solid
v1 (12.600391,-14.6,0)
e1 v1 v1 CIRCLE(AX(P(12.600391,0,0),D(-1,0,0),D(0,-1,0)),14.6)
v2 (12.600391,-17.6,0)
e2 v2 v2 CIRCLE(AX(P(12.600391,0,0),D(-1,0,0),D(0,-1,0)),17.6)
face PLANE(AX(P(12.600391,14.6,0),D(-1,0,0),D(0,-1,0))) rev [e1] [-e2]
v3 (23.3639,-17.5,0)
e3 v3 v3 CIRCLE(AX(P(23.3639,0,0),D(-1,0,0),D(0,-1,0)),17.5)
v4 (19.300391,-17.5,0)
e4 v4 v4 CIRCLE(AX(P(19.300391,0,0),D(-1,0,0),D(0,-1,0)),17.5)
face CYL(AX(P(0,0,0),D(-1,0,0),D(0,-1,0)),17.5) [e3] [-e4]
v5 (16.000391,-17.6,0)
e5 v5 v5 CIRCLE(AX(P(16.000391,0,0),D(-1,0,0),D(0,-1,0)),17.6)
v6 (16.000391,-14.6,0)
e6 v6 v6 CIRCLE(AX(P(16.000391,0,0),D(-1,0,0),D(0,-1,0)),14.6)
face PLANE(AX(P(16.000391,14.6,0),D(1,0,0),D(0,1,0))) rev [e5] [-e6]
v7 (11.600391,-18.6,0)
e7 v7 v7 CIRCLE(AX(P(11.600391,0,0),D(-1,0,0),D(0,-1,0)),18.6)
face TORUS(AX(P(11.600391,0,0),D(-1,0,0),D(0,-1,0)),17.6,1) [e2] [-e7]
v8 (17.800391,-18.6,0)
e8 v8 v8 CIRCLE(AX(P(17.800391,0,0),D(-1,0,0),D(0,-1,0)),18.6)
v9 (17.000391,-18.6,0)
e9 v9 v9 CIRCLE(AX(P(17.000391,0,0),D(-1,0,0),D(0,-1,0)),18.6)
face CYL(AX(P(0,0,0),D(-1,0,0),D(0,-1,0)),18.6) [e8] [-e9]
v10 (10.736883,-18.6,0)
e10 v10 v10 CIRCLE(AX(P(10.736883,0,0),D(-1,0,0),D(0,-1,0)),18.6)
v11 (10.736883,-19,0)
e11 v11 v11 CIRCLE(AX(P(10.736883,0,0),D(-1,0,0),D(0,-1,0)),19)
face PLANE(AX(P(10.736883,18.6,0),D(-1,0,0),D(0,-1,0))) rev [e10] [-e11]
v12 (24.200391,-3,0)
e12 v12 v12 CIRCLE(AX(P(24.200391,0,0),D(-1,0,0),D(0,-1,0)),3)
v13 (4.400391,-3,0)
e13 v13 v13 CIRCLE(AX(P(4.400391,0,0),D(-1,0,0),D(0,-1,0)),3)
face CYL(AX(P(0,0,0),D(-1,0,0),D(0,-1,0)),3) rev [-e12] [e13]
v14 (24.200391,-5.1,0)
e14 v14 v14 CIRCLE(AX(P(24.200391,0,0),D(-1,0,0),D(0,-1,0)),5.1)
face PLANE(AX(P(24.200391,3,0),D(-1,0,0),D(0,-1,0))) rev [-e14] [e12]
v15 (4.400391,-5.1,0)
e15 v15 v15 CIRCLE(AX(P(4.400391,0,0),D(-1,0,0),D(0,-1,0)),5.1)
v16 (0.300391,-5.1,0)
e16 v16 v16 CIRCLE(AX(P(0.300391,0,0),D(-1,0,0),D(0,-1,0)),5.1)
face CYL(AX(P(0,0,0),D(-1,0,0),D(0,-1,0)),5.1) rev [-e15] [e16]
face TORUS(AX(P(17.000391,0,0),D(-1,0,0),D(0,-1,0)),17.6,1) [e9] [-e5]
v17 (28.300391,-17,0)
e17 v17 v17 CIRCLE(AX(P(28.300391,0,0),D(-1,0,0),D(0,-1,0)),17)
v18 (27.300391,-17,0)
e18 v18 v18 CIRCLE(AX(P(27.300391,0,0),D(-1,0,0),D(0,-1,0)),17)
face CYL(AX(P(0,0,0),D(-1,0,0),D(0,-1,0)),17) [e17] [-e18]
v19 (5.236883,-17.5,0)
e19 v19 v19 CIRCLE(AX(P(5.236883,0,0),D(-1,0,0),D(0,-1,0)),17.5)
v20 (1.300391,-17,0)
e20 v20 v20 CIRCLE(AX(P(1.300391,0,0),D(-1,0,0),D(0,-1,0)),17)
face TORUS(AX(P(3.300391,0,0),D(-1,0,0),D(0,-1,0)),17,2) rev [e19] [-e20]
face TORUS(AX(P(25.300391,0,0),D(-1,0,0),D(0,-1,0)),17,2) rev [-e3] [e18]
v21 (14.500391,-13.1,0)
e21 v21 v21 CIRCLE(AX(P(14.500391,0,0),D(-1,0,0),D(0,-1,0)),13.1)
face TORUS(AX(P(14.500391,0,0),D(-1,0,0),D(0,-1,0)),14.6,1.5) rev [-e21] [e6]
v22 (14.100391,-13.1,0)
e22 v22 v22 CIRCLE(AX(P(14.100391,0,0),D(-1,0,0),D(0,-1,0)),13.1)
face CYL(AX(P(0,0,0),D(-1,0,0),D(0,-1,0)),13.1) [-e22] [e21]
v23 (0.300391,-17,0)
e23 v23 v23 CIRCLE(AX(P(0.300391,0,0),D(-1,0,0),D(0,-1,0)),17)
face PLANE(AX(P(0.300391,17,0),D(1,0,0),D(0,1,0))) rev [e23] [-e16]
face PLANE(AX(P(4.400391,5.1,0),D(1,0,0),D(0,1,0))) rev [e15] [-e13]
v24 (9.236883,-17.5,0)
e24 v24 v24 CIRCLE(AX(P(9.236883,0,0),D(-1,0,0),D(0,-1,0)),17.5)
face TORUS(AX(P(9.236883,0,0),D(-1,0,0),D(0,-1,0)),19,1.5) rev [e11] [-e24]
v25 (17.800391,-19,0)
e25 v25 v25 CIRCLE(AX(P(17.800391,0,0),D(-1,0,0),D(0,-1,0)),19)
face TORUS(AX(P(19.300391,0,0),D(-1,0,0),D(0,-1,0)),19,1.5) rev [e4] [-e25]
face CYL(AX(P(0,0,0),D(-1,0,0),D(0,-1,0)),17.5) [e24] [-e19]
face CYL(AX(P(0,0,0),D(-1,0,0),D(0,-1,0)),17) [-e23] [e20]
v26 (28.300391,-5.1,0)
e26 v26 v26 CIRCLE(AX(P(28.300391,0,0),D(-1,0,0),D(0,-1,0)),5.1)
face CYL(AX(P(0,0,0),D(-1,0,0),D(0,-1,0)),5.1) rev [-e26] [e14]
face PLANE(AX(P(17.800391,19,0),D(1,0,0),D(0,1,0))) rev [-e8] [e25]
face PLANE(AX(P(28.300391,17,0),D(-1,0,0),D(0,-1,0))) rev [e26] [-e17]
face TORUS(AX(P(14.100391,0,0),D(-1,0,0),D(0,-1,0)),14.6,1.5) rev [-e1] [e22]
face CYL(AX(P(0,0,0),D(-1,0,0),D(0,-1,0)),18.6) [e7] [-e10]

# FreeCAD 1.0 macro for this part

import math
import FreeCAD as App
import Part
import Sketcher
from FreeCAD import Vector
Q = App.Units.Quantity

doc = App.newDocument("Part")
params = doc.addObject("Spreadsheet::Sheet", "Params")
for row, (alias, value) in enumerate([
    ("sketch1_radius", "1 mm"),
    ("sketch1_radius2", "2 mm"),
    ("sketch1_radius3", "1.5 mm"),
    ("sketch1_width", "4 mm"),
    ("sketch1_width2", "1 mm"),
    ("revolution_angle", "360 deg"),
], start=1):
    params.set(f"A{row}", alias)
    params.set(f"B{row}", "=" + value)
    params.setAlias(f"B{row}", alias)

body = doc.addObject("PartDesign::Body", "Body")

# Sketch on XY plane
sketch1 = body.newObject("Sketcher::SketchObject", "Sketch")
sketch1.AttachmentSupport = (doc.getObject("XY_Plane"), [""])
sketch1.MapMode = "FlatFace"
sketch1.addGeometry([
    Part.LineSegment(Vector(17.800391, 19, 0), Vector(17.800391, 18.6, 0)),  # 0
    Part.LineSegment(Vector(17.800391, 18.6, 0), Vector(17.000391, 18.6, 0)),  # 1
    Part.ArcOfCircle(Part.Circle(Vector(17.000391, 17.6, 0), Vector(0, 0, 1), 1), math.radians(90), math.radians(180)),  # 2
    Part.LineSegment(Vector(16.000391, 17.6, 0), Vector(16.000391, 14.6, 0)),  # 3
    Part.ArcOfCircle(Part.Circle(Vector(14.500391, 14.6, 0), Vector(0, 0, 1), 1.5), math.radians(-90), math.radians(0)),  # 4
    Part.LineSegment(Vector(14.500391, 13.1, 0), Vector(14.100391, 13.1, 0)),  # 5
    Part.ArcOfCircle(Part.Circle(Vector(14.100391, 14.6, 0), Vector(0, 0, 1), 1.5), math.radians(180), math.radians(270)),  # 6
    Part.LineSegment(Vector(12.600391, 14.6, 0), Vector(12.600391, 17.6, 0)),  # 7
    Part.ArcOfCircle(Part.Circle(Vector(11.600391, 17.6, 0), Vector(0, 0, 1), 1), math.radians(0), math.radians(90)),  # 8
    Part.LineSegment(Vector(11.600391, 18.6, 0), Vector(10.736883, 18.6, 0)),  # 9
    Part.LineSegment(Vector(10.736883, 18.6, 0), Vector(10.736883, 19, 0)),  # 10
    Part.ArcOfCircle(Part.Circle(Vector(9.236883, 19, 0), Vector(0, 0, 1), 1.5), math.radians(-90), math.radians(0)),  # 11
    Part.LineSegment(Vector(9.236883, 17.5, 0), Vector(5.236883, 17.5, 0)),  # 12
    Part.ArcOfCircle(Part.Circle(Vector(3.300391, 17, 0), Vector(0, 0, 1), 2), math.radians(180), math.radians(374.477512)),  # 13
    Part.LineSegment(Vector(1.300391, 17, 0), Vector(0.300391, 17, 0)),  # 14
    Part.LineSegment(Vector(0.300391, 17, 0), Vector(0.300391, 5.1, 0)),  # 15
    Part.LineSegment(Vector(0.300391, 5.1, 0), Vector(4.400391, 5.1, 0)),  # 16
    Part.LineSegment(Vector(4.400391, 5.1, 0), Vector(4.400391, 3, 0)),  # 17
    Part.LineSegment(Vector(4.400391, 3, 0), Vector(24.200391, 3, 0)),  # 18
    Part.LineSegment(Vector(24.200391, 3, 0), Vector(24.200391, 5.1, 0)),  # 19
    Part.LineSegment(Vector(24.200391, 5.1, 0), Vector(28.300391, 5.1, 0)),  # 20
    Part.LineSegment(Vector(28.300391, 5.1, 0), Vector(28.300391, 17, 0)),  # 21
    Part.LineSegment(Vector(28.300391, 17, 0), Vector(27.300391, 17, 0)),  # 22
    Part.ArcOfCircle(Part.Circle(Vector(25.300391, 17, 0), Vector(0, 0, 1), 2), math.radians(165.522488), math.radians(360)),  # 23
    Part.LineSegment(Vector(23.3639, 17.5, 0), Vector(19.300391, 17.5, 0)),  # 24
    Part.ArcOfCircle(Part.Circle(Vector(19.300391, 19, 0), Vector(0, 0, 1), 1.5), math.radians(180), math.radians(270)),  # 25
], False)
sketch1.addConstraint([
    Sketcher.Constraint("Coincident", 0, 2, 1, 1),
    Sketcher.Constraint("Tangent", 1, 2, 2, 1),
    Sketcher.Constraint("Tangent", 2, 2, 3, 1),
    Sketcher.Constraint("Tangent", 3, 2, 4, 2),
    Sketcher.Constraint("Tangent", 4, 1, 5, 1),
    Sketcher.Constraint("Tangent", 5, 2, 6, 2),
    Sketcher.Constraint("Tangent", 6, 1, 7, 1),
    Sketcher.Constraint("Tangent", 7, 2, 8, 1),
    Sketcher.Constraint("Tangent", 8, 2, 9, 1),
    Sketcher.Constraint("Coincident", 9, 2, 10, 1),
    Sketcher.Constraint("Tangent", 10, 2, 11, 2),
    Sketcher.Constraint("Tangent", 11, 1, 12, 1),
    Sketcher.Constraint("Coincident", 12, 2, 13, 2),
    Sketcher.Constraint("Coincident", 13, 1, 14, 1),
    Sketcher.Constraint("Coincident", 14, 2, 15, 1),
    Sketcher.Constraint("Coincident", 15, 2, 16, 1),
    Sketcher.Constraint("Coincident", 16, 2, 17, 1),
    Sketcher.Constraint("Coincident", 17, 2, 18, 1),
    Sketcher.Constraint("Coincident", 18, 2, 19, 1),
    Sketcher.Constraint("Coincident", 19, 2, 20, 1),
    Sketcher.Constraint("Coincident", 20, 2, 21, 1),
    Sketcher.Constraint("Coincident", 21, 2, 22, 1),
    Sketcher.Constraint("Coincident", 22, 2, 23, 2),
    Sketcher.Constraint("Coincident", 23, 1, 24, 1),
    Sketcher.Constraint("Tangent", 24, 2, 25, 2),
    Sketcher.Constraint("Tangent", 25, 1, 0, 1),
    Sketcher.Constraint("Vertical", 0),
    Sketcher.Constraint("Horizontal", 1),
    Sketcher.Constraint("Vertical", 3),
    Sketcher.Constraint("Horizontal", 5),
    Sketcher.Constraint("Vertical", 7),
    Sketcher.Constraint("Horizontal", 9),
    Sketcher.Constraint("Vertical", 10),
    Sketcher.Constraint("Horizontal", 12),
    Sketcher.Constraint("Horizontal", 14),
    Sketcher.Constraint("Vertical", 15),
    Sketcher.Constraint("Horizontal", 16),
    Sketcher.Constraint("Vertical", 17),
    Sketcher.Constraint("Horizontal", 18),
    Sketcher.Constraint("Vertical", 19),
    Sketcher.Constraint("Horizontal", 20),
    Sketcher.Constraint("Vertical", 21),
    Sketcher.Constraint("Horizontal", 22),
    Sketcher.Constraint("Horizontal", 24),
    Sketcher.Constraint("Equal", 4, 6),
    Sketcher.Constraint("Equal", 2, 8),
    Sketcher.Constraint("Equal", 6, 11),
    Sketcher.Constraint("Equal", 13, 23),
    Sketcher.Constraint("Equal", 11, 25),
    Sketcher.Constraint("Horizontal", 2, 3, 8, 3),
    Sketcher.Constraint("Horizontal", 13, 3, 23, 3),
    Sketcher.Constraint("Horizontal", 11, 3, 25, 3),
    Sketcher.Constraint("Horizontal", 23, 3, 13, 1),
    Sketcher.Constraint("Horizontal", 16, 2, 19, 2),
    Sketcher.Constraint("Horizontal", 14, 2, 21, 2),
    Sketcher.Constraint("Equal", 16, 20),
    Sketcher.Constraint("Equal", 14, 22),
    Sketcher.Constraint("Equal", 5, 0),
    Sketcher.Constraint("Radius", 2, Q("1 mm")),
    Sketcher.Constraint("Radius", 13, Q("2 mm")),
    Sketcher.Constraint("Radius", 4, Q("1.5 mm")),
    Sketcher.Constraint("DistanceX", 12, 2, 12, 1, Q("4 mm")),
    Sketcher.Constraint("DistanceX", 14, 2, 14, 1, Q("1 mm")),
    Sketcher.Constraint("DistanceY", 3, 2, 3, 1, Q("3 mm")),
    Sketcher.Constraint("DistanceX", 1, 2, 1, 1, Q("0.8 mm")),
    Sketcher.Constraint("DistanceX", 5, 2, 5, 1, Q("0.4 mm")),
    Sketcher.Constraint("DistanceX", 16, 1, 16, 2, Q("4.1 mm")),
    Sketcher.Constraint("DistanceX", 18, 1, 18, 2, Q("19.8 mm")),
    Sketcher.Constraint("DistanceY", 15, 2, 15, 1, Q("11.9 mm")),
    Sketcher.Constraint("DistanceY", 17, 2, 17, 1, Q("2.1 mm")),
    Sketcher.Constraint("DistanceY", -1, 1, 11, 3, Q("19 mm")),
    Sketcher.Constraint("DistanceY", -1, 1, 13, 3, Q("17 mm")),
    Sketcher.Constraint("DistanceX", 25, 3, 23, 3, Q("6 mm")),
    Sketcher.Constraint("DistanceX", -1, 1, 23, 1, Q("23.3639 mm")),
])
sketch1.setExpression("Constraints[58]", "Params.sketch1_radius")
sketch1.setExpression("Constraints[59]", "Params.sketch1_radius2")
sketch1.setExpression("Constraints[60]", "Params.sketch1_radius3")
sketch1.setExpression("Constraints[61]", "Params.sketch1_width")
sketch1.setExpression("Constraints[62]", "Params.sketch1_width2")
revolution = body.newObject("PartDesign::Revolution", "Revolution")
revolution.Profile = sketch1
revolution.ReferenceAxis = (sketch1, ["H_Axis"])
revolution.setExpression("Angle", "Params.revolution_angle")

doc.recompute()
